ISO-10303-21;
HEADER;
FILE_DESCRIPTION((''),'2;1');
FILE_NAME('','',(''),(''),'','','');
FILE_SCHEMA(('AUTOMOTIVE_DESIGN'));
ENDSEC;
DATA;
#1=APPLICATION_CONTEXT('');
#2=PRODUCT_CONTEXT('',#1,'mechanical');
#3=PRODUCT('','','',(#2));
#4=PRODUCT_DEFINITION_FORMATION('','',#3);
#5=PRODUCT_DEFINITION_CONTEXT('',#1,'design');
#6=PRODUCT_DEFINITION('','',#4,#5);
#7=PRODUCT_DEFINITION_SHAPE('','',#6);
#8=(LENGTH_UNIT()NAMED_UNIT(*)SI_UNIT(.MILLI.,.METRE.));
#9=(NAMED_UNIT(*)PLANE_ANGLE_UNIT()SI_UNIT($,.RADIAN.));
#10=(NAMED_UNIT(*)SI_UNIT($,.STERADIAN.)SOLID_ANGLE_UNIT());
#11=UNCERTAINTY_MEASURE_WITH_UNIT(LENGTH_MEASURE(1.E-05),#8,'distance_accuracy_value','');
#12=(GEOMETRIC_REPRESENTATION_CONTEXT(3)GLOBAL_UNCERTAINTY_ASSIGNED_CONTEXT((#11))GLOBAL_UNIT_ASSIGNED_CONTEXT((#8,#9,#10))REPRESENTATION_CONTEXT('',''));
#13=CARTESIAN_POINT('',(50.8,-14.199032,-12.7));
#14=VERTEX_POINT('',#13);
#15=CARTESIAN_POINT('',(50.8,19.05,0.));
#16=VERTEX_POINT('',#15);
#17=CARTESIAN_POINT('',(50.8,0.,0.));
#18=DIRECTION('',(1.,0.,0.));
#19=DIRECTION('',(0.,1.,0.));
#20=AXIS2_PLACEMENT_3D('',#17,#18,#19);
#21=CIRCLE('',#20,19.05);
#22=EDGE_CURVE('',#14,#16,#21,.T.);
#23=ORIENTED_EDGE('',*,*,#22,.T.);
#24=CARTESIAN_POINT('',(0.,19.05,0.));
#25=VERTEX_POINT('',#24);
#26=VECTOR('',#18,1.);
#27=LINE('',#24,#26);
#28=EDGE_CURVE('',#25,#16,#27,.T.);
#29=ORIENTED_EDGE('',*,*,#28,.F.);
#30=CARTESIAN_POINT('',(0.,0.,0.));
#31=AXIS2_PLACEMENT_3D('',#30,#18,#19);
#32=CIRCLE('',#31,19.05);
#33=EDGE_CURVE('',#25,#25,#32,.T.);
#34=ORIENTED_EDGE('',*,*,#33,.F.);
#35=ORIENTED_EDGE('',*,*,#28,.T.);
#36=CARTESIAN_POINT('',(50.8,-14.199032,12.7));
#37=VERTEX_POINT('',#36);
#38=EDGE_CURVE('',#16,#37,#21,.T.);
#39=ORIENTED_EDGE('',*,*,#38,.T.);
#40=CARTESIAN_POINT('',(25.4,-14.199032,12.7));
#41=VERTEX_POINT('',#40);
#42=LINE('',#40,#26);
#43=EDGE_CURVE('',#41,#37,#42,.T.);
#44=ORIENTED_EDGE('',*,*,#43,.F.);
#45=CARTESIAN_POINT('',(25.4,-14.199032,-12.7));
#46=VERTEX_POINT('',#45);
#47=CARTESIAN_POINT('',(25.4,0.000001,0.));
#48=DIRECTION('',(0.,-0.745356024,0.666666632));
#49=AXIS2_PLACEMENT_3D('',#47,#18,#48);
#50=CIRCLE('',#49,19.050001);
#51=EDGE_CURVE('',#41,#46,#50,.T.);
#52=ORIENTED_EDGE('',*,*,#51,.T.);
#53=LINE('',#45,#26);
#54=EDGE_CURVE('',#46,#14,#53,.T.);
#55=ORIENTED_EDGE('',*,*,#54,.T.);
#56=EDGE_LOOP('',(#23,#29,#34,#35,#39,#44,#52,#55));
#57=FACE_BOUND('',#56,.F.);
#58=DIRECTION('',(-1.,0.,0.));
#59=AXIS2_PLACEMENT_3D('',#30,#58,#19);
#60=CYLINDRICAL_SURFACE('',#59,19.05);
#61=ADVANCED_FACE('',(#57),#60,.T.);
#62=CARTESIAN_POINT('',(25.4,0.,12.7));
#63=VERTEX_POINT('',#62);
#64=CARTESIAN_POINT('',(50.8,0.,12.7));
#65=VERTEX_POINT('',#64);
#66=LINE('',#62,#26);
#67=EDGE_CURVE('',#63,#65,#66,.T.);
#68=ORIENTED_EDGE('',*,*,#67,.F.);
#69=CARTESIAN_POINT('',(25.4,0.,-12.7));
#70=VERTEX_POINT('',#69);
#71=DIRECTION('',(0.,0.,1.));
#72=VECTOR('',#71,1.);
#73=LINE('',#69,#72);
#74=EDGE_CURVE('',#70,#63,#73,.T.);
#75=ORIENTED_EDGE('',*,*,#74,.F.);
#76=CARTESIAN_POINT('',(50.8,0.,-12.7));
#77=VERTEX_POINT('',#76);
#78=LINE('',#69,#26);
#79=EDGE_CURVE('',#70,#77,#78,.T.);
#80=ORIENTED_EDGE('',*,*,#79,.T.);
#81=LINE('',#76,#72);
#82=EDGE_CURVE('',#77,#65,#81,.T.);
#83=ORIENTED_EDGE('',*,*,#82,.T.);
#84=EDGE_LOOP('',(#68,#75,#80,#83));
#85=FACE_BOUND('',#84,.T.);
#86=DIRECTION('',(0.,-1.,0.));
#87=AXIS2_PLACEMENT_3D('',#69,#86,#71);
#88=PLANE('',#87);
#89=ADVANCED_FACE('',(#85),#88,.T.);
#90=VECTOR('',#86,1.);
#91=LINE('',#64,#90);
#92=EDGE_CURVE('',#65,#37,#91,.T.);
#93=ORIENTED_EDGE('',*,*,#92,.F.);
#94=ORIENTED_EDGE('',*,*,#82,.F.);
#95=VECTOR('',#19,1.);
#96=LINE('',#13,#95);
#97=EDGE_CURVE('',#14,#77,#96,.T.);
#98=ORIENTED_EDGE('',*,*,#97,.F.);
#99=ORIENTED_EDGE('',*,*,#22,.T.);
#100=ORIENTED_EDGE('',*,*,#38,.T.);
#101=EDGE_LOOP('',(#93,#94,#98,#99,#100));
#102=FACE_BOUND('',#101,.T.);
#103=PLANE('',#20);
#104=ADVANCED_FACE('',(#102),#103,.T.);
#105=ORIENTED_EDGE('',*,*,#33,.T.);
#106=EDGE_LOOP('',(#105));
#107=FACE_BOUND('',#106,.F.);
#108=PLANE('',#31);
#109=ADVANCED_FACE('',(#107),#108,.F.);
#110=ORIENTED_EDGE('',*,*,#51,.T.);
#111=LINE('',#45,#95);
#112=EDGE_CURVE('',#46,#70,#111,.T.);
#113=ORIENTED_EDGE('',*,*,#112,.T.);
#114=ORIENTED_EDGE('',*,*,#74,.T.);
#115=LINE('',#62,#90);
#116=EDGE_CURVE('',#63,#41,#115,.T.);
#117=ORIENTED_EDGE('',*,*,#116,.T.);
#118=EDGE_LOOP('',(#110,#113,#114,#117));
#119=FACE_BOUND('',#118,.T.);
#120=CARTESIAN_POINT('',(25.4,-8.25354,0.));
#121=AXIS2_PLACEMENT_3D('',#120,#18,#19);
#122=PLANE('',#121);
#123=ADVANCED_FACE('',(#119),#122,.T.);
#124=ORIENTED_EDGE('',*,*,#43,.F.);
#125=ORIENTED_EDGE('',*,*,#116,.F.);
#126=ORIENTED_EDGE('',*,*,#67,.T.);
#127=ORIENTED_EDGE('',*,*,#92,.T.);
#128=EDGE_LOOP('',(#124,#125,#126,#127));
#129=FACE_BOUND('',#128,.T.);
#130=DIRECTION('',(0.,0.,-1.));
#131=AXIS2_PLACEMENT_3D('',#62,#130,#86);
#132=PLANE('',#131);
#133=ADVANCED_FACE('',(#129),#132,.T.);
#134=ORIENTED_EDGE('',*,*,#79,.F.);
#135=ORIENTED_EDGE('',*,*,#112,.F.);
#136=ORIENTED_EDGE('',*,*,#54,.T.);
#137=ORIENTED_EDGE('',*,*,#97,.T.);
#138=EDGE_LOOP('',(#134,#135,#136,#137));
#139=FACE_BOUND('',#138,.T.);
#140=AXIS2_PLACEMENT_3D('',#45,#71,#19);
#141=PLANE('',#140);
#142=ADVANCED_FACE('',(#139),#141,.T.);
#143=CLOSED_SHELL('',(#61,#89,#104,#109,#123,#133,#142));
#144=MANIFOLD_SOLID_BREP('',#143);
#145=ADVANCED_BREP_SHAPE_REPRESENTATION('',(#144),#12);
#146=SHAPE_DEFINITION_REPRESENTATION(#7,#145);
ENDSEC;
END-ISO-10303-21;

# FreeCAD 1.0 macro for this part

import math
import FreeCAD as App
import Part
import Sketcher
from FreeCAD import Vector
Q = App.Units.Quantity

doc = App.newDocument("Part")
params = doc.addObject("Spreadsheet::Sheet", "Params")
for row, (alias, value) in enumerate([
    ("sketch1_diameter", "1.5 in"),
    ("pad1_length", "2 in"),
    ("sketch2_height", "1 in"),
    ("sketch2_radius", "0.75 in"),
    ("pocket1_length", "1 in"),
], start=1):
    params.set(f"A{row}", alias)
    params.set(f"B{row}", "=" + value)
    params.setAlias(f"B{row}", alias)

body = doc.addObject("PartDesign::Body", "Body")

sketch1 = body.newObject("Sketcher::SketchObject", "Sketch")
sketch1.AttachmentSupport = (doc.getObject("YZ_Plane"), [""])
sketch1.MapMode = "FlatFace"
sketch1.addGeometry(Part.Circle(Vector(0, 0, 0), Vector(0, 0, 1), 19), False)
sketch1.addConstraint([
    Sketcher.Constraint("Coincident", 0, 3, -1, 1),
    Sketcher.Constraint("Diameter", 0, Q("1.5 in")),
])
sketch1.setExpression("Constraints[1]", "Params.sketch1_diameter")
pad1 = body.newObject("PartDesign::Pad", "Pad")
pad1.Profile = sketch1
pad1.setExpression("Length", "Params.pad1_length")

sketch2 = body.newObject("Sketcher::SketchObject", "Sketch001")
sketch2.AttachmentSupport = (doc.getObject("YZ_Plane"), [""])
sketch2.MapMode = "FlatFace"
sketch2.AttachmentOffset = App.Placement(Vector(0, 0, 1 * 25.4), App.Rotation())
sketch2.addGeometry([
    Part.LineSegment(Vector(0, 13, 0), Vector(-14, 13, 0)),
    Part.ArcOfCircle(Part.Circle(Vector(0, 0, 0), Vector(0, 0, 1), 19), math.radians(138), math.radians(222)),
    Part.LineSegment(Vector(-14, -13, 0), Vector(0, -13, 0)),
    Part.LineSegment(Vector(0, -13, 0), Vector(0, 13, 0)),
], False)
sketch2.addConstraint([
    Sketcher.Constraint("Coincident", 0, 2, 1, 1),
    Sketcher.Constraint("Coincident", 1, 2, 2, 1),
    Sketcher.Constraint("Coincident", 2, 2, 3, 1),
    Sketcher.Constraint("Coincident", 3, 2, 0, 1),
    Sketcher.Constraint("Horizontal", 0),
    Sketcher.Constraint("Horizontal", 2),
    Sketcher.Constraint("Vertical", 3),
    Sketcher.Constraint("Coincident", 1, 3, -1, 1),
    Sketcher.Constraint("Symmetric", 2, 2, 3, 2, -1, 1),
    Sketcher.Constraint("DistanceY", 3, 1, 3, 2, Q("1 in")),
    Sketcher.Constraint("Radius", 1, Q("0.75 in")),
])
sketch2.setExpression("Constraints[9]", "Params.sketch2_height")
sketch2.setExpression("Constraints[10]", "Params.sketch2_radius")
pocket1 = body.newObject("PartDesign::Pocket", "Pocket")
pocket1.Profile = sketch2
pocket1.setExpression("Length", "Params.pocket1_length")
pocket1.Reversed = True

doc.recompute()
